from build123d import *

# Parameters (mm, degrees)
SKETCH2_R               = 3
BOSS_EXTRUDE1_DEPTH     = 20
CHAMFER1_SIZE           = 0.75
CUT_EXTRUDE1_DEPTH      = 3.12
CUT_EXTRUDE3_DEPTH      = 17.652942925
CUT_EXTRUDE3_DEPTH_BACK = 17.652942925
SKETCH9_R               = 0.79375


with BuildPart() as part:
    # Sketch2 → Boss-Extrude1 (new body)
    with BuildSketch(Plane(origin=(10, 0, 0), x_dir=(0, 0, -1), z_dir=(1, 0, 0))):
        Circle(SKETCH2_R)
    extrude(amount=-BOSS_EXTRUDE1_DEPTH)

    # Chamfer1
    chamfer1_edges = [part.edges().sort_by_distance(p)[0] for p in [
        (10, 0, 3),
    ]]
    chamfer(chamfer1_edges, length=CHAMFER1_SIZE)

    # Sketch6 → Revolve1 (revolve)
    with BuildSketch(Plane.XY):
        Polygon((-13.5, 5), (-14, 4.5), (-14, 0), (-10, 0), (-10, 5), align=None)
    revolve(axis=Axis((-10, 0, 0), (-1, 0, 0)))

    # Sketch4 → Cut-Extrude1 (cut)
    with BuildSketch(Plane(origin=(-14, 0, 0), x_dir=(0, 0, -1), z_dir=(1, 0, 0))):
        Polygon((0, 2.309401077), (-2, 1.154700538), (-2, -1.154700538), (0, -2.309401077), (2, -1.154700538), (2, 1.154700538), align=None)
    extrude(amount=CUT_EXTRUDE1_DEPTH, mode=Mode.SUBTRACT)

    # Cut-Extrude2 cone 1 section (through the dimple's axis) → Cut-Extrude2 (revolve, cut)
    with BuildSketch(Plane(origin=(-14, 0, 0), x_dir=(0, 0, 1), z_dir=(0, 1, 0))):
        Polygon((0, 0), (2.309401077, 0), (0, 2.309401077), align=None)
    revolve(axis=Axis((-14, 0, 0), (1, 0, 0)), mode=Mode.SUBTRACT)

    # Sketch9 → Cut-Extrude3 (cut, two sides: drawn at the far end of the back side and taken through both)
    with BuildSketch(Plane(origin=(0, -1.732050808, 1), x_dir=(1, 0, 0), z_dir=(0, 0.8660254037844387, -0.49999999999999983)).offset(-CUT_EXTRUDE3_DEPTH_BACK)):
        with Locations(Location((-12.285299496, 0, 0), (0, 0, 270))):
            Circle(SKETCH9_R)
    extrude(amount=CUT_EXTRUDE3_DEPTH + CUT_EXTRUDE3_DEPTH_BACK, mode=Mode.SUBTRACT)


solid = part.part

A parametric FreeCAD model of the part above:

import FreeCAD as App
import Part
import Sketcher

V = App.Vector
Q = App.Units.Quantity


def edges_at(feature, points):
    """Names of the edges that pass closest to the given points."""
    edges = feature.Shape.Edges
    near = lambda p: min(range(len(edges)), key=lambda i: edges[i].distToShape(Part.Vertex(*p))[0])
    return sorted({f"Edge{near(p) + 1}" for p in points})

doc = App.newDocument("Part")
body = doc.addObject("PartDesign::Body", "Body")

sketch1 = body.newObject("Sketcher::SketchObject", "Sketch")
sketch1.AttachmentSupport = (doc.getObject("YZ_Plane"), [""])
sketch1.MapMode = "FlatFace"
sketch1.AttachmentOffset = App.Placement(V(0, 0, 10), App.Rotation())
sketch1.addGeometry(Part.Circle(V(0, 0, 0), V(0, 0, 1), 3), False)
sketch1.addConstraint([
    Sketcher.Constraint("Coincident", 0, 3, -1, 1),
    Sketcher.Constraint("Diameter", 0, Q("6 mm")),
])
pad1 = body.newObject("PartDesign::Pad", "Pad")
pad1.Profile = sketch1
pad1.Length = 20
pad1.Reversed = True
doc.recompute()

chamfer = body.newObject("PartDesign::Chamfer", "Chamfer")
chamfer.Base = (pad1, edges_at(pad1, [(10, 0, 3)]))
chamfer.Size = 0.75

sketch2 = body.newObject("Sketcher::SketchObject", "Sketch001")
sketch2.AttachmentSupport = (doc.getObject("XY_Plane"), [""])
sketch2.MapMode = "FlatFace"
sketch2.addGeometry([
    Part.LineSegment(V(-13.5, 5, 0), V(-14, 4.5, 0)),
    Part.LineSegment(V(-14, 4.5, 0), V(-14, 0, 0)),
    Part.LineSegment(V(-14, 0, 0), V(-10, 0, 0)),
    Part.LineSegment(V(-10, 0, 0), V(-10, 5, 0)),
    Part.LineSegment(V(-10, 5, 0), V(-13.5, 5, 0)),
], False)
sketch2.addConstraint([
    Sketcher.Constraint("Coincident", 0, 2, 1, 1),
    Sketcher.Constraint("Coincident", 1, 2, 2, 1),
    Sketcher.Constraint("Coincident", 2, 2, 3, 1),
    Sketcher.Constraint("Coincident", 3, 2, 4, 1),
    Sketcher.Constraint("Coincident", 4, 2, 0, 1),
    Sketcher.Constraint("Vertical", 1),
    Sketcher.Constraint("Horizontal", 2),
    Sketcher.Constraint("Vertical", 3),
    Sketcher.Constraint("Horizontal", 4),
    Sketcher.Constraint("PointOnObject", 1, 2, -1),
    Sketcher.Constraint("DistanceX", 2, 1, 2, 2, Q("4 mm")),
    Sketcher.Constraint("DistanceY", 3, 1, 3, 2, Q("5 mm")),
    Sketcher.Constraint("Angle", 0, Q("-135 deg")),
    Sketcher.Constraint("DistanceX", 4, 2, 4, 1, Q("3.5 mm")),
    Sketcher.Constraint("DistanceX", 0, 2, -1, 1, Q("14 mm")),
])
revolution = body.newObject("PartDesign::Revolution", "Revolution")
revolution.Profile = sketch2
revolution.ReferenceAxis = (sketch2, ["H_Axis"])
revolution.Angle = 360

sketch3 = body.newObject("Sketcher::SketchObject", "Sketch002")
sketch3.AttachmentSupport = (doc.getObject("YZ_Plane"), [""])
sketch3.MapMode = "FlatFace"
sketch3.AttachmentOffset = App.Placement(V(0, 0, -14), App.Rotation())
sketch3.addGeometry([
    Part.LineSegment(V(2.309401, 0, 0), V(1.154701, 2, 0)),
    Part.LineSegment(V(1.154701, 2, 0), V(-1.154701, 2, 0)),
    Part.LineSegment(V(-1.154701, 2, 0), V(-2.309401, 0, 0)),
    Part.LineSegment(V(-2.309401, 0, 0), V(-1.154701, -2, 0)),
    Part.LineSegment(V(-1.154701, -2, 0), V(1.154701, -2, 0)),
    Part.LineSegment(V(1.154701, -2, 0), V(2.309401, 0, 0)),
], False)
sketch3.addConstraint([
    Sketcher.Constraint("Coincident", 0, 2, 1, 1),
    Sketcher.Constraint("Coincident", 1, 2, 2, 1),
    Sketcher.Constraint("Coincident", 2, 2, 3, 1),
    Sketcher.Constraint("Coincident", 3, 2, 4, 1),
    Sketcher.Constraint("Coincident", 4, 2, 5, 1),
    Sketcher.Constraint("Coincident", 5, 2, 0, 1),
    Sketcher.Constraint("Horizontal", 1),
    Sketcher.Constraint("Horizontal", 4),
    Sketcher.Constraint("Symmetric", 0, 2, 3, 2, -1, 1),
    Sketcher.Constraint("Symmetric", 2, 2, 5, 2, -1, 1),
    Sketcher.Constraint("PointOnObject", 2, 2, -1),
    Sketcher.Constraint("Parallel", 2, 5),
    Sketcher.Constraint("Vertical", 1, 2, 3, 2),
    Sketcher.Constraint("Angle", 0, Q("120 deg")),
    Sketcher.Constraint("DistanceY", -1, 1, 0, 2, Q("2 mm")),
    Sketcher.Constraint("DistanceX", 1, 2, 1, 1, Q("2.309401 mm")),
])
pocket1 = body.newObject("PartDesign::Pocket", "Pocket")
pocket1.Profile = sketch3
pocket1.Length = 3.12
pocket1.Reversed = True

sketch4 = body.newObject("Sketcher::SketchObject", "Sketch003")
sketch4.AttachmentSupport = (doc.getObject("XZ_Plane"), [""])
sketch4.MapMode = "FlatFace"
sketch4.addGeometry([
    Part.LineSegment(V(-14, 0, 0), V(-14, 2.309401, 0)),
    Part.LineSegment(V(-14, 2.309401, 0), V(-11.690599, 0, 0)),
    Part.LineSegment(V(-11.690599, 0, 0), V(-14, 0, 0)),
], False)
sketch4.addConstraint([
    Sketcher.Constraint("Coincident", 0, 2, 1, 1),
    Sketcher.Constraint("Coincident", 1, 2, 2, 1),
    Sketcher.Constraint("Coincident", 2, 2, 0, 1),
    Sketcher.Constraint("Vertical", 0),
    Sketcher.Constraint("Horizontal", 2),
    Sketcher.Constraint("PointOnObject", 1, 2, -1),
    Sketcher.Constraint("Equal", 2, 0),
    Sketcher.Constraint("DistanceX", 0, 2, -1, 1, Q("14 mm")),
    Sketcher.Constraint("DistanceX", 2, 2, 2, 1, Q("2.309401 mm")),
])
groove = body.newObject("PartDesign::Groove", "Groove")
groove.Profile = sketch4
groove.ReferenceAxis = (sketch4, ["H_Axis"])
groove.Angle = 360

sketch5 = body.newObject("Sketcher::SketchObject", "Sketch004")
sketch5.Placement = App.Placement(V(0, -1.732051, 1), App.Rotation(V(1, 0, 0), V(0, -0.5, -0.866025404), V(0, 0.866025404, -0.5), "ZXY"))
sketch5.addGeometry(Part.Circle(V(-12.285299, 0, 0), V(0, 0, 1), 0.79375), False)
sketch5.addConstraint([
    Sketcher.Constraint("PointOnObject", 0, 3, -1),
    Sketcher.Constraint("Diameter", 0, Q("1.5875 mm")),
    Sketcher.Constraint("DistanceX", 0, 3, -1, 1, Q("12.285299 mm")),
])
pocket2 = body.newObject("PartDesign::Pocket", "Pocket001")
pocket2.Profile = sketch5
pocket2.Type = "ThroughAll"
pocket2.Midplane = True

doc.recompute()
